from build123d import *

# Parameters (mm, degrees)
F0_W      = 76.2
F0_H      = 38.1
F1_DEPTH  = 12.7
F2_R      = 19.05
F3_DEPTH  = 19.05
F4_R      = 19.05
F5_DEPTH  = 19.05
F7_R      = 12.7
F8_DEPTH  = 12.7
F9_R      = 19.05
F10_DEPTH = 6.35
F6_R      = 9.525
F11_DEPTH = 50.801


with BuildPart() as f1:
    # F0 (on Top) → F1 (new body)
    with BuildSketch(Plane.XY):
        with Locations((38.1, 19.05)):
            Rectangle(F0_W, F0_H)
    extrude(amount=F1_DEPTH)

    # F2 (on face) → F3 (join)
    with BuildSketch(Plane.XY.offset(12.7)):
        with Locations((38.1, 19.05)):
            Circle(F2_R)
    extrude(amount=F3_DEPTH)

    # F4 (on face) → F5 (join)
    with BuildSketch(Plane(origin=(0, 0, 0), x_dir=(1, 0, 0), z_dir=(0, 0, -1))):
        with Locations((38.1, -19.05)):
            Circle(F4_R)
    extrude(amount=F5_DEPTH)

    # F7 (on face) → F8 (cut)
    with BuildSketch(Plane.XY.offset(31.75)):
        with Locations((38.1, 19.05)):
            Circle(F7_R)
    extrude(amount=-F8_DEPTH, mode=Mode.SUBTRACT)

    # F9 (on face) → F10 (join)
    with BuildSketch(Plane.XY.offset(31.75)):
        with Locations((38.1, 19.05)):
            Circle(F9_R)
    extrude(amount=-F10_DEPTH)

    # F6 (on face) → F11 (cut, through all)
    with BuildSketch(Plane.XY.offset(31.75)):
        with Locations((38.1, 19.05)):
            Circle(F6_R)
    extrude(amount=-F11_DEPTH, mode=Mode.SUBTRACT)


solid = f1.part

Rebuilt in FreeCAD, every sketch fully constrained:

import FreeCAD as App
import Part
import Sketcher
from FreeCAD import Vector
Q = App.Units.Quantity


def add_polygon(sketch, points):
    """Adds a closed chain of lines whose ends are joined by coincident constraints."""
    first, n = sketch.GeometryCount, len(points)
    for a, b in zip(points, points[1:] + points[:1]):
        sketch.addGeometry(Part.LineSegment(App.Vector(*a, 0), App.Vector(*b, 0)), False)
    for i in range(n):
        sketch.addConstraint(Sketcher.Constraint("Coincident", first + i, 2, first + (i + 1) % n, 1))

doc = App.newDocument("Part")
body = doc.addObject("PartDesign::Body", "Body")

# Sketch on XY plane
sketch1 = body.newObject("Sketcher::SketchObject", "Sketch")
sketch1.AttachmentSupport = (doc.getObject("XY_Plane"), [""])
sketch1.MapMode = "FlatFace"
add_polygon(sketch1, [(0, 38), (0, 0), (76, 0), (76, 38)])  # lines 0-3
sketch1.addConstraint([
    Sketcher.Constraint("Vertical", 0),
    Sketcher.Constraint("Horizontal", 1),
    Sketcher.Constraint("Vertical", 2),
    Sketcher.Constraint("Horizontal", 3),
    Sketcher.Constraint("Coincident", 0, 2, -1, 1),
    Sketcher.Constraint("DistanceX", 1, 1, 1, 2, Q("3 in")),
    Sketcher.Constraint("DistanceY", 0, 2, 0, 1, Q("1.5 in")),
])
pad1 = body.newObject("PartDesign::Pad", "Pad")
pad1.Profile = sketch1
pad1.Length = Q("0.5 in")

# Sketch on XY plane
sketch2 = body.newObject("Sketcher::SketchObject", "Sketch001")
sketch2.AttachmentSupport = (doc.getObject("XY_Plane"), [""])
sketch2.MapMode = "FlatFace"
sketch2.AttachmentOffset = App.Placement(Vector(0, 0, 0.5 * 25.4), App.Rotation())
sketch2.addGeometry(Part.Circle(Vector(38, 19, 0), Vector(0, 0, 1), 19), False)
sketch2.addConstraint([
    Sketcher.Constraint("Diameter", 0, Q("1.5 in")),
    Sketcher.Constraint("DistanceX", -1, 1, 0, 3, Q("1.5 in")),
    Sketcher.Constraint("DistanceY", -1, 1, 0, 3, Q("0.75 in")),
])
pad2 = body.newObject("PartDesign::Pad", "Pad001")
pad2.Profile = sketch2
pad2.Length = Q("0.75 in")

# Sketch on XY plane
sketch3 = body.newObject("Sketcher::SketchObject", "Sketch002")
sketch3.AttachmentSupport = (doc.getObject("XY_Plane"), [""])
sketch3.MapMode = "FlatFace"
sketch3.addGeometry(Part.Circle(Vector(38, 19, 0), Vector(0, 0, 1), 19), False)
sketch3.addConstraint([
    Sketcher.Constraint("Diameter", 0, Q("1.5 in")),
    Sketcher.Constraint("DistanceX", -1, 1, 0, 3, Q("1.5 in")),
    Sketcher.Constraint("DistanceY", -1, 1, 0, 3, Q("0.75 in")),
])
pad3 = body.newObject("PartDesign::Pad", "Pad002")
pad3.Profile = sketch3
pad3.Length = Q("0.75 in")
pad3.Reversed = True

# Sketch on XY plane
sketch4 = body.newObject("Sketcher::SketchObject", "Sketch003")
sketch4.AttachmentSupport = (doc.getObject("XY_Plane"), [""])
sketch4.MapMode = "FlatFace"
sketch4.AttachmentOffset = App.Placement(Vector(0, 0, 1.25 * 25.4), App.Rotation())
sketch4.addGeometry(Part.Circle(Vector(38, 19, 0), Vector(0, 0, 1), 13), False)
sketch4.addConstraint([
    Sketcher.Constraint("Diameter", 0, Q("1 in")),
    Sketcher.Constraint("DistanceX", -1, 1, 0, 3, Q("1.5 in")),
    Sketcher.Constraint("DistanceY", -1, 1, 0, 3, Q("0.75 in")),
])
pocket1 = body.newObject("PartDesign::Pocket", "Pocket")
pocket1.Profile = sketch4
pocket1.Length = Q("0.5 in")

# Sketch on XY plane
sketch5 = body.newObject("Sketcher::SketchObject", "Sketch004")
sketch5.AttachmentSupport = (doc.getObject("XY_Plane"), [""])
sketch5.MapMode = "FlatFace"
sketch5.AttachmentOffset = App.Placement(Vector(0, 0, 1.25 * 25.4), App.Rotation())
sketch5.addGeometry(Part.Circle(Vector(38, 19, 0), Vector(0, 0, 1), 19), False)
sketch5.addConstraint([
    Sketcher.Constraint("Diameter", 0, Q("1.5 in")),
    Sketcher.Constraint("DistanceX", -1, 1, 0, 3, Q("1.5 in")),
    Sketcher.Constraint("DistanceY", -1, 1, 0, 3, Q("0.75 in")),
])
pad4 = body.newObject("PartDesign::Pad", "Pad003")
pad4.Profile = sketch5
pad4.Length = Q("0.25 in")
pad4.Reversed = True

# Sketch on XY plane
sketch6 = body.newObject("Sketcher::SketchObject", "Sketch005")
sketch6.AttachmentSupport = (doc.getObject("XY_Plane"), [""])
sketch6.MapMode = "FlatFace"
sketch6.AttachmentOffset = App.Placement(Vector(0, 0, 1.25 * 25.4), App.Rotation())
sketch6.addGeometry(Part.Circle(Vector(38, 19, 0), Vector(0, 0, 1), 10), False)
sketch6.addConstraint([
    Sketcher.Constraint("Diameter", 0, Q("0.75 in")),
    Sketcher.Constraint("DistanceX", -1, 1, 0, 3, Q("1.5 in")),
    Sketcher.Constraint("DistanceY", -1, 1, 0, 3, Q("0.75 in")),
])
pocket2 = body.newObject("PartDesign::Pocket", "Pocket001")
pocket2.Profile = sketch6
pocket2.Type = "ThroughAll"

doc.recompute()
